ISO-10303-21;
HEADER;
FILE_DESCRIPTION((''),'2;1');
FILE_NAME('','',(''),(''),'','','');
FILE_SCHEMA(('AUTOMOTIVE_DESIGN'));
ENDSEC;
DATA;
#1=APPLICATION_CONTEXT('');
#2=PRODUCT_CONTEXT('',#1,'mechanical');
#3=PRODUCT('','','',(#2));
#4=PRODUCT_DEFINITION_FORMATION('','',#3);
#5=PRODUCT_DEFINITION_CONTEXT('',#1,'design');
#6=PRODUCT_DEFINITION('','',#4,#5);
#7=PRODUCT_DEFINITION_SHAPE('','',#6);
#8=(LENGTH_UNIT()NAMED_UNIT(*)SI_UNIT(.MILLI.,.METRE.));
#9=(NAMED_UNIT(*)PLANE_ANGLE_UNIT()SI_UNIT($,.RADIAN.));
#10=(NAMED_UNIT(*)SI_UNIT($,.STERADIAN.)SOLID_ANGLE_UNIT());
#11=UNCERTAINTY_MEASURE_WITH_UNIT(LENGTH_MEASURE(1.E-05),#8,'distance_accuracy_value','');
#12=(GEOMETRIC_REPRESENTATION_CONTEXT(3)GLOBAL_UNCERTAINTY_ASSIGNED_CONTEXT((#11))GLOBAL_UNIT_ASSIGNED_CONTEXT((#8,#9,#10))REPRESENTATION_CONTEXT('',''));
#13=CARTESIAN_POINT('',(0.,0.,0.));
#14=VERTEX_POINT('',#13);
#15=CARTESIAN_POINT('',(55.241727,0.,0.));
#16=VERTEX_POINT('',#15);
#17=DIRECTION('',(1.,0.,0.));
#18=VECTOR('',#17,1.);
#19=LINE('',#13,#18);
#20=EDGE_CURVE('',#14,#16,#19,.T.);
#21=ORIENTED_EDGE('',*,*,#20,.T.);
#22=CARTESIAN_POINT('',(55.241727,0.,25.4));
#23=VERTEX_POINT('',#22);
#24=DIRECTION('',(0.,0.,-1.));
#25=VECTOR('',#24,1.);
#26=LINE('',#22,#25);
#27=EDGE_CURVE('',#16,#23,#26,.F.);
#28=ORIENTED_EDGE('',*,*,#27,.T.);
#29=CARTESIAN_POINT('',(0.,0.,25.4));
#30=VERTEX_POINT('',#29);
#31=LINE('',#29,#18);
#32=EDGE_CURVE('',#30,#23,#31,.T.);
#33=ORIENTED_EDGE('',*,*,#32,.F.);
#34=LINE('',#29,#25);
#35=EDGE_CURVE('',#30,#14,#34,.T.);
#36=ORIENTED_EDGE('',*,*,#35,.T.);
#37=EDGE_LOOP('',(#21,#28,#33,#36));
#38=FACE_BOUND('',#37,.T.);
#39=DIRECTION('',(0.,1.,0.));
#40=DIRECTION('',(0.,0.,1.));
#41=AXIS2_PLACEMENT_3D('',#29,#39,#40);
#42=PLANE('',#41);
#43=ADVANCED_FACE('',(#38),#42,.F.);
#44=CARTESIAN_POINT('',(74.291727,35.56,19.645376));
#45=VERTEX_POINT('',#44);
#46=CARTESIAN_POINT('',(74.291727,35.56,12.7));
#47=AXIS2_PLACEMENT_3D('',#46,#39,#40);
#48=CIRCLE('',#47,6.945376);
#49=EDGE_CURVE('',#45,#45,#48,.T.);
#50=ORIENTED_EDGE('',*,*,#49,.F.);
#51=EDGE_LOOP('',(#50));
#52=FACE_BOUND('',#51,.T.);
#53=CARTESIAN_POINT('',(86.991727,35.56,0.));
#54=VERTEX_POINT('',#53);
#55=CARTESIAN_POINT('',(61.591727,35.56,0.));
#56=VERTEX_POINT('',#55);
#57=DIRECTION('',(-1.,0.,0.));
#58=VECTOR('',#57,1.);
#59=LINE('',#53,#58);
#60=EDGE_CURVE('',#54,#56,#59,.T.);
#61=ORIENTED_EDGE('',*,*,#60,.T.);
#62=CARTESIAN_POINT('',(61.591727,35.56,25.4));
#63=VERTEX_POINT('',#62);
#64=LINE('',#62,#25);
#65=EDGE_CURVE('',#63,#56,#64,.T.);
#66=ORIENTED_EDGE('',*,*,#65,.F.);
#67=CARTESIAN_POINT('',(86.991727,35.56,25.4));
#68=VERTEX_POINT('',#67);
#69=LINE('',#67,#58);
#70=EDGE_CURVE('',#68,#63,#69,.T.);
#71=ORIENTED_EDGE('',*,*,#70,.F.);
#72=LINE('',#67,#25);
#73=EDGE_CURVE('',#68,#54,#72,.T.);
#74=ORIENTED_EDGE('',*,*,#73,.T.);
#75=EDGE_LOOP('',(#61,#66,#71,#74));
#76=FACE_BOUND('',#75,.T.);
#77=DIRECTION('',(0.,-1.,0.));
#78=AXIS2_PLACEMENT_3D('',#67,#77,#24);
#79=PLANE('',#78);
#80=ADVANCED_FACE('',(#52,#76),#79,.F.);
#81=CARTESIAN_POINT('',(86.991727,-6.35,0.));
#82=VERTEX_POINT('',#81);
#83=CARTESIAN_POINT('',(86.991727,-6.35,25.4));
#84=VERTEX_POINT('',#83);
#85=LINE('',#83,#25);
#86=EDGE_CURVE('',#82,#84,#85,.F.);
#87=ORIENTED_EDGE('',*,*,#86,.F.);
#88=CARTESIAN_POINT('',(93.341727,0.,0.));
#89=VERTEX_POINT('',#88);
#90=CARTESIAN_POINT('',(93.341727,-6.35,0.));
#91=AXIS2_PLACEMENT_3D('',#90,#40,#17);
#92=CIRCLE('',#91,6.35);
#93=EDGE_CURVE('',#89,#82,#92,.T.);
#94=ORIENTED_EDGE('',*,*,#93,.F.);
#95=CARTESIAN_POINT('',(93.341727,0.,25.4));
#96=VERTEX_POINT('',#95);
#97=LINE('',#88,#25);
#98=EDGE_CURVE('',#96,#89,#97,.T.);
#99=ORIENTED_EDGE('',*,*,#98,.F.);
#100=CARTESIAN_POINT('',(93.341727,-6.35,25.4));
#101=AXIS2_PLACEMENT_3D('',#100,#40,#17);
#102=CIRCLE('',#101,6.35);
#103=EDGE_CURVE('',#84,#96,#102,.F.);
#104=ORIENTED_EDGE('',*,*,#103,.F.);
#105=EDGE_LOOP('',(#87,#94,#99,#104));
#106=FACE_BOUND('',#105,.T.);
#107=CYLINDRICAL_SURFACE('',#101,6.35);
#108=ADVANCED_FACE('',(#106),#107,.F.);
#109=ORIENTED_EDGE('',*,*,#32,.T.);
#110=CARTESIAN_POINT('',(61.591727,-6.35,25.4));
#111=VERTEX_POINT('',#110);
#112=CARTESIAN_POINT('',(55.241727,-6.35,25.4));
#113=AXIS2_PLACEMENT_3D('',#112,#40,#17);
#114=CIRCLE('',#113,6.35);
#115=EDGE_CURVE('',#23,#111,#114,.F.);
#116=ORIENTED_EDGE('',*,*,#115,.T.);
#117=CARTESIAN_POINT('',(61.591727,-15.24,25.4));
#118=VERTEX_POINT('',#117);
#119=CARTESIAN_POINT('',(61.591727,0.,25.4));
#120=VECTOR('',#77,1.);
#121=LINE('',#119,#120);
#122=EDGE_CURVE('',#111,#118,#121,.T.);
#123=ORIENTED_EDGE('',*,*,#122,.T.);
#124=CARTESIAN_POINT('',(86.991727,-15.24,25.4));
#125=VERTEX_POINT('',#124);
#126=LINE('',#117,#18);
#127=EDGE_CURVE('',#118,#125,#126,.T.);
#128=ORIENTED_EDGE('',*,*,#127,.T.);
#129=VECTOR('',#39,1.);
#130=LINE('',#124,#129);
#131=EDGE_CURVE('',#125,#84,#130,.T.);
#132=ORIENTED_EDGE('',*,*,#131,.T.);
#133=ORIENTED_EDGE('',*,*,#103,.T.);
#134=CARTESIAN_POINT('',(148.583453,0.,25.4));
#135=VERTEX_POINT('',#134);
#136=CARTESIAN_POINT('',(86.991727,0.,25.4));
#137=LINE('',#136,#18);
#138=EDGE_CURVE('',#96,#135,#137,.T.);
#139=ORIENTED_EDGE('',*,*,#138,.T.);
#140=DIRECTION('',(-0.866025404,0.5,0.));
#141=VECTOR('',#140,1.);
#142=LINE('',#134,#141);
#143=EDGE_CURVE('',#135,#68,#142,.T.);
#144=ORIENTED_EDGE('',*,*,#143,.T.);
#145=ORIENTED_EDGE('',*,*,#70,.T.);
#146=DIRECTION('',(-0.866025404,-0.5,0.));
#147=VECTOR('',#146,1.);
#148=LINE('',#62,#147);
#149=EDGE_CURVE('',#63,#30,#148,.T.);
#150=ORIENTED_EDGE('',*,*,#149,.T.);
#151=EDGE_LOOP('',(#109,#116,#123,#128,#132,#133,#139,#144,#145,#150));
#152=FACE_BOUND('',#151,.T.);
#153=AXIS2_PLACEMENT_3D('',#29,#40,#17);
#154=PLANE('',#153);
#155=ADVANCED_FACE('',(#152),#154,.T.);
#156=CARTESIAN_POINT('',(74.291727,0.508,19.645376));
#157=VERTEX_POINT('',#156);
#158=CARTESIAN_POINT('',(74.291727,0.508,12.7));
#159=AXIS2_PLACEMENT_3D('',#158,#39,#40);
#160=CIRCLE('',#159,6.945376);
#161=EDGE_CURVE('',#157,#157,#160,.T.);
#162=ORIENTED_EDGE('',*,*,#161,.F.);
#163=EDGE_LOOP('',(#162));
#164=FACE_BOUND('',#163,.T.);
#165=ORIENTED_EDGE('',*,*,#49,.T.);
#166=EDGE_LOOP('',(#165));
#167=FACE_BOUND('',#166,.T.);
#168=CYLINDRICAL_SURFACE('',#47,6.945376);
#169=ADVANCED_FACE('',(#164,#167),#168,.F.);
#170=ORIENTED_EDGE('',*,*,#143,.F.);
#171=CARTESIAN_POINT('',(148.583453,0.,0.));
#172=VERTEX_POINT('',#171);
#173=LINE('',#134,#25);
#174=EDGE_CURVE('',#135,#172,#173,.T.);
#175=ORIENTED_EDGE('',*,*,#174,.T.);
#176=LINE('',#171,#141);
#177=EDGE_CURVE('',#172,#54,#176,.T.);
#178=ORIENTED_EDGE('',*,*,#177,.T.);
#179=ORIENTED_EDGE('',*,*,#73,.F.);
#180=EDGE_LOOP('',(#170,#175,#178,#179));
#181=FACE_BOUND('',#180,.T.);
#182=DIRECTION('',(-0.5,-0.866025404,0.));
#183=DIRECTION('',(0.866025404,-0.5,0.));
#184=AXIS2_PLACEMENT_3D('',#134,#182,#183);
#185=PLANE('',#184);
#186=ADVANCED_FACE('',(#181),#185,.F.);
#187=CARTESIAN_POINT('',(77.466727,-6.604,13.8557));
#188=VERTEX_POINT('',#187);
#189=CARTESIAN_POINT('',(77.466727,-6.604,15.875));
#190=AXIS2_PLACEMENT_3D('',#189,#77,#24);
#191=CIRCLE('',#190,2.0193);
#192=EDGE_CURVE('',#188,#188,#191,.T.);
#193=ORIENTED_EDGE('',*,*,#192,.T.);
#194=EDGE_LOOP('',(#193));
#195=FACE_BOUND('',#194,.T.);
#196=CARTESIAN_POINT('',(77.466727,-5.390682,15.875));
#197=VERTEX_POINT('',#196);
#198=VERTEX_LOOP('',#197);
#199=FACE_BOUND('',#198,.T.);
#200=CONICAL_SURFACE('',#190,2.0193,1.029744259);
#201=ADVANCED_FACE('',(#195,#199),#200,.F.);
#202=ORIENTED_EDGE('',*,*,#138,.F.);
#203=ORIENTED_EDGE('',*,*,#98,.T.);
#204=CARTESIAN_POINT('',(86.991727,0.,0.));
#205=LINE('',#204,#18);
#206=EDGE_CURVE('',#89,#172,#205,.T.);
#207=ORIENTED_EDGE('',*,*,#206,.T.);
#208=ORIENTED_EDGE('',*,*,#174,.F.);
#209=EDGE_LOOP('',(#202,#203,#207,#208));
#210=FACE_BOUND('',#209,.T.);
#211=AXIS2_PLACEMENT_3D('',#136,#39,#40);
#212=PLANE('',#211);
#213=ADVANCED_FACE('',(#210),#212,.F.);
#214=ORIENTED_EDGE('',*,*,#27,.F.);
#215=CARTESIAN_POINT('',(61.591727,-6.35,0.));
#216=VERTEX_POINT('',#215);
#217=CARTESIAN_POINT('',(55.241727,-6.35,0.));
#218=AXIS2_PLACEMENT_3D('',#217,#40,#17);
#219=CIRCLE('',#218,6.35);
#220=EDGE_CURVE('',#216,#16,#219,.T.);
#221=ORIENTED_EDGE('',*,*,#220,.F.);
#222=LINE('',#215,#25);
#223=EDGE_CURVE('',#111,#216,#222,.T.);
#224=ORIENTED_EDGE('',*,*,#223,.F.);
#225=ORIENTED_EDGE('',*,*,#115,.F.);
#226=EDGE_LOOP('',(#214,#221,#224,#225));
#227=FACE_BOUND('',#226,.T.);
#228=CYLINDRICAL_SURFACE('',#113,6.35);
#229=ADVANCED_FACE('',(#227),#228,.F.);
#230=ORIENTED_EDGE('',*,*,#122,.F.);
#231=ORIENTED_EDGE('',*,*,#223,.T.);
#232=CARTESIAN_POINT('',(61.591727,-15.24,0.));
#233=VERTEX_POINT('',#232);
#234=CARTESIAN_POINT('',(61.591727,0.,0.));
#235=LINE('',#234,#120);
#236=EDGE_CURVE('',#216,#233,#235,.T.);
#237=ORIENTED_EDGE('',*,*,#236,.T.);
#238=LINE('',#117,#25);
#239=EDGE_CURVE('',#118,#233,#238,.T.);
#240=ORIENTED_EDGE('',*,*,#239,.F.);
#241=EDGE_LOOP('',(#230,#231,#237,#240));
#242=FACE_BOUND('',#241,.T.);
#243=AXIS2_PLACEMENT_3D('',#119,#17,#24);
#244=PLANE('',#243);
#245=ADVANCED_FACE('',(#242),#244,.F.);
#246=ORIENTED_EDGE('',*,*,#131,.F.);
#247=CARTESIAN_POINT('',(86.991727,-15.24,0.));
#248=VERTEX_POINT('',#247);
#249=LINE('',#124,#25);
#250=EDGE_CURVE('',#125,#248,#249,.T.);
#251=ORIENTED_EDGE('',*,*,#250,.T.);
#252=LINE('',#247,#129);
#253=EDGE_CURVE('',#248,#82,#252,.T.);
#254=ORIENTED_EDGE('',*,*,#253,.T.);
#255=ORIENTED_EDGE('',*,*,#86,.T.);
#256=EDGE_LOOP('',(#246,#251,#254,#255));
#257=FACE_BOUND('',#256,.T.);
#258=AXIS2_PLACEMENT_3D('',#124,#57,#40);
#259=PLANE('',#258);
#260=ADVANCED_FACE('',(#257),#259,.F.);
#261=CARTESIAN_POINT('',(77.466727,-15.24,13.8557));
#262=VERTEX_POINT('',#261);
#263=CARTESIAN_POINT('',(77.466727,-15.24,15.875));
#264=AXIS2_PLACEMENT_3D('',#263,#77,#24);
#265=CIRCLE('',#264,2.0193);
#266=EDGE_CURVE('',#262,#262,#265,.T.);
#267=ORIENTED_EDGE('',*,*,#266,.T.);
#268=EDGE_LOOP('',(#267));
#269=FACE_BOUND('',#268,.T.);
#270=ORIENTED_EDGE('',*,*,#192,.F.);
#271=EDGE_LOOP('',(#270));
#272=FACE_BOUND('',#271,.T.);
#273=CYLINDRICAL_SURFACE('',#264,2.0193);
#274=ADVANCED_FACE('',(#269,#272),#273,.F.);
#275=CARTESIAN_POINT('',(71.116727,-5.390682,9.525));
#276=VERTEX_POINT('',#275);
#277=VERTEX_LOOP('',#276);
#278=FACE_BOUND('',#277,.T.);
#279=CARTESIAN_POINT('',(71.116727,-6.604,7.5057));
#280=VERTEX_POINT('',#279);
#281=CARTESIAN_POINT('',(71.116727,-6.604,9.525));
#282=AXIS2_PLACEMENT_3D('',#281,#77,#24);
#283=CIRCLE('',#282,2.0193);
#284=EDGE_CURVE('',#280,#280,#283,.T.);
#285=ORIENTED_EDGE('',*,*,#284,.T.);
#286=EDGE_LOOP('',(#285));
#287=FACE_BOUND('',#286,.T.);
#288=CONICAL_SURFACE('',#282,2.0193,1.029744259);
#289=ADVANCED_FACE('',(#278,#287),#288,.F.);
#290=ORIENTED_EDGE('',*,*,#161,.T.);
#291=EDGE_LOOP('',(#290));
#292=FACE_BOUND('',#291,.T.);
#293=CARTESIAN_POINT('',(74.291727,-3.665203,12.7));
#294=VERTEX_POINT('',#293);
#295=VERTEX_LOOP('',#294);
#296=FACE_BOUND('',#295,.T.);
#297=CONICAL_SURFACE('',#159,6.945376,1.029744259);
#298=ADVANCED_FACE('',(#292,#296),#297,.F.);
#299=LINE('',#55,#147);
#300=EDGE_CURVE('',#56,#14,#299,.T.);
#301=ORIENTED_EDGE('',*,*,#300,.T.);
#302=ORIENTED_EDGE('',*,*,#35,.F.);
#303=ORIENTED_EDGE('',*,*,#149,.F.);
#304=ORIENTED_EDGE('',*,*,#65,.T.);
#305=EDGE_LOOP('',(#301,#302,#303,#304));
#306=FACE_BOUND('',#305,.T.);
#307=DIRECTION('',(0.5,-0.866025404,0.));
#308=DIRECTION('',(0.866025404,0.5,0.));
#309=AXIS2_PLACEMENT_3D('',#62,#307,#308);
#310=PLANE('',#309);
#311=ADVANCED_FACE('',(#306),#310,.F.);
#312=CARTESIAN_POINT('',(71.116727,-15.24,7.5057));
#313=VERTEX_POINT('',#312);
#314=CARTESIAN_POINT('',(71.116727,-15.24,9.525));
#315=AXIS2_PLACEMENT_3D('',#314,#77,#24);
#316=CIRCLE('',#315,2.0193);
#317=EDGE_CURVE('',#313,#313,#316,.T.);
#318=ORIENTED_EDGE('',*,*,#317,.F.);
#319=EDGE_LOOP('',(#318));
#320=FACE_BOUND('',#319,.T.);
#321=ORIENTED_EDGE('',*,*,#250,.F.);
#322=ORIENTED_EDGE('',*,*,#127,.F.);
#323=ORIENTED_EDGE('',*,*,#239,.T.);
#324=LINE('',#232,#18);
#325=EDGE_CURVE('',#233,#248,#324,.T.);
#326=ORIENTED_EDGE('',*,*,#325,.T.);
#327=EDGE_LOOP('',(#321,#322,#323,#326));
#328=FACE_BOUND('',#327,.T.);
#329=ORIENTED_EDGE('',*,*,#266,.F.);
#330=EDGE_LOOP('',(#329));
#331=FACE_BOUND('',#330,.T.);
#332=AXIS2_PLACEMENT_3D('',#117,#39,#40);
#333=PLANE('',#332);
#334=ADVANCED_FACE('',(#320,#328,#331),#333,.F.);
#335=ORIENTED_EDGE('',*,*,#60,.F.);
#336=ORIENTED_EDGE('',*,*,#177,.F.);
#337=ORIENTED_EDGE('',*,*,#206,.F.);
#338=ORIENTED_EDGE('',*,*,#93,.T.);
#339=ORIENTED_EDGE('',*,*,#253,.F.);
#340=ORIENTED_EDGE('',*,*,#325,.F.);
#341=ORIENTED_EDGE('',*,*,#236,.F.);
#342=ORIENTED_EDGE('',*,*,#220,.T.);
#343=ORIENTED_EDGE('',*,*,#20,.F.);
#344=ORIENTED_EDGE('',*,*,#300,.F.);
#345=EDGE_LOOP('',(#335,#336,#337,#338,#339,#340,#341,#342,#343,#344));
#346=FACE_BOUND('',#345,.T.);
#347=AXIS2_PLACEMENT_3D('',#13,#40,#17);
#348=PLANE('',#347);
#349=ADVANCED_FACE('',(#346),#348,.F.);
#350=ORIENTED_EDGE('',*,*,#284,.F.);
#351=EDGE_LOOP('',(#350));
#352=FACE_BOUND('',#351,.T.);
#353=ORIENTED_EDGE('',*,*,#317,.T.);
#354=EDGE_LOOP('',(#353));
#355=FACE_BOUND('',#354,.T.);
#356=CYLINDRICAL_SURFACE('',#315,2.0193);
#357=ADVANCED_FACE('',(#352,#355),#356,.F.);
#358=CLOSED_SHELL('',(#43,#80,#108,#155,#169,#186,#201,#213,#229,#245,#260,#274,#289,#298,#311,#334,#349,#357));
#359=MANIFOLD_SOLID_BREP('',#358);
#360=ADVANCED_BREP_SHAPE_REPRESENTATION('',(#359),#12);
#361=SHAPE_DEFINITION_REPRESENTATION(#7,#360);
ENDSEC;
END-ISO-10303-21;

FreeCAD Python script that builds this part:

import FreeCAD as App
import Part
import Sketcher
Q = App.Units.Quantity


def edges_at(feature, points):
    """Names of the edges that pass closest to the given points."""
    edges = feature.Shape.Edges
    near = lambda p: min(range(len(edges)), key=lambda i: edges[i].distToShape(Part.Vertex(*p))[0])
    return sorted({f"Edge{near(p) + 1}" for p in points})

doc = App.newDocument("Part")
body = doc.addObject("PartDesign::Body", "Body")

# Sketch on XY plane
sketch1 = body.newObject("Sketcher::SketchObject", "Sketch")
sketch1.AttachmentSupport = (doc.getObject("XY_Plane"), [""])
sketch1.MapMode = "FlatFace"
sketch1.addGeometry([
    Part.LineSegment(App.Vector(0, 0, 0), App.Vector(62, 0, 0)),  # 0
    Part.LineSegment(App.Vector(62, 0, 0), App.Vector(62, -15, 0)),  # 1
    Part.LineSegment(App.Vector(62, -15, 0), App.Vector(87, -15, 0)),  # 2
    Part.LineSegment(App.Vector(87, -15, 0), App.Vector(87, 0, 0)),  # 3
    Part.LineSegment(App.Vector(87, 0, 0), App.Vector(149, 0, 0)),  # 4
    Part.LineSegment(App.Vector(149, 0, 0), App.Vector(87, 36, 0)),  # 5
    Part.LineSegment(App.Vector(87, 36, 0), App.Vector(62, 36, 0)),  # 6
    Part.LineSegment(App.Vector(62, 36, 0), App.Vector(0, 0, 0)),  # 7
], False)
sketch1.addConstraint([
    Sketcher.Constraint("Coincident", 0, 2, 1, 1),
    Sketcher.Constraint("Coincident", 1, 2, 2, 1),
    Sketcher.Constraint("Coincident", 2, 2, 3, 1),
    Sketcher.Constraint("Coincident", 3, 2, 4, 1),
    Sketcher.Constraint("Coincident", 4, 2, 5, 1),
    Sketcher.Constraint("Coincident", 5, 2, 6, 1),
    Sketcher.Constraint("Coincident", 6, 2, 7, 1),
    Sketcher.Constraint("Coincident", 7, 2, 0, 1),
    Sketcher.Constraint("Horizontal", 0),
    Sketcher.Constraint("Vertical", 1),
    Sketcher.Constraint("Horizontal", 2),
    Sketcher.Constraint("Vertical", 3),
    Sketcher.Constraint("Horizontal", 4),
    Sketcher.Constraint("Horizontal", 6),
    Sketcher.Constraint("Coincident", 7, 2, -1, 1),
    Sketcher.Constraint("PointOnObject", 3, 2, -1),
    Sketcher.Constraint("Vertical", 3, 2, 5, 2),
    Sketcher.Constraint("Vertical", 1, 2, 6, 2),
    Sketcher.Constraint("Equal", 0, 4),
    Sketcher.Constraint("DistanceX", 2, 1, 2, 2, Q("1 in")),
    Sketcher.Constraint("DistanceY", 1, 2, 1, 1, Q("0.6 in")),
    Sketcher.Constraint("Angle", 5, Q("150 deg")),
    Sketcher.Constraint("DistanceY", 2, 2, 5, 2, Q("2 in")),
])
pad1 = body.newObject("PartDesign::Pad", "Pad")
pad1.Profile = sketch1
pad1.Length = Q("1 in")

# Sketch on XZ plane
sketch2 = body.newObject("Sketcher::SketchObject", "Sketch001")
sketch2.AttachmentSupport = (doc.getObject("XZ_Plane"), [""])
sketch2.MapMode = "FlatFace"
sketch2.AttachmentOffset = App.Placement(App.Vector(0, 0, -1.4 * 25.4), App.Rotation())
sketch2.addGeometry(Part.Circle(App.Vector(74, 13, 0), App.Vector(0, 0, 1), 7), False)
sketch2.addConstraint([
    Sketcher.Constraint("DistanceY", -1, 1, 0, 3, Q("0.5 in")),
    Sketcher.Constraint("Diameter", 0, 13.890752),
    Sketcher.Constraint("DistanceX", -1, 1, 0, 3, 74.291727),
])
doc.recompute()
hole = body.newObject("PartDesign::Hole", "Hole")
hole.Profile = sketch2
hole.ThreadType = "None"
hole.Diameter = 13.890752
hole.DepthType = "Dimension"
hole.Depth = Q("1.38 in")
hole.DrillPoint = "Angled"
hole.DrillPointAngle = 118
hole.Reversed = True

# Sketch on XZ plane
sketch3 = body.newObject("Sketcher::SketchObject", "Sketch002")
sketch3.AttachmentSupport = (doc.getObject("XZ_Plane"), [""])
sketch3.MapMode = "FlatFace"
sketch3.AttachmentOffset = App.Placement(App.Vector(0, 0, 0.6 * 25.4), App.Rotation())
sketch3.addGeometry([
    Part.Circle(App.Vector(77.5, 15.9, 0), App.Vector(0, 0, 1), 2),
    Part.Circle(App.Vector(71.1, 9.5, 0), App.Vector(0, 0, 1), 2),
], False)
sketch3.addConstraint([
    Sketcher.Constraint("Equal", 0, 1),
    Sketcher.Constraint("Diameter", 0, Q("0.159 in")),
    Sketcher.Constraint("DistanceX", 1, 3, 0, 3, Q("0.25 in")),
    Sketcher.Constraint("DistanceY", 1, 3, 0, 3, Q("0.25 in")),
    Sketcher.Constraint("DistanceY", -1, 1, 0, 3, Q("0.625 in")),
    Sketcher.Constraint("DistanceX", -1, 1, 0, 3, 77.466727),
])
doc.recompute()
hole2 = body.newObject("PartDesign::Hole", "Hole001")
hole2.Profile = sketch3
hole2.ThreadType = "None"
hole2.Diameter = Q("0.159 in")
hole2.DepthType = "Dimension"
hole2.Depth = Q("0.34 in")
hole2.DrillPoint = "Angled"
hole2.DrillPointAngle = 118
doc.recompute()

fillet = body.newObject("PartDesign::Fillet", "Fillet")
fillet.Base = (hole2, edges_at(hole2, [(86.992, 0, 12.7), (61.592, 0, 12.7)]))
fillet.Radius = Q("0.25 in")

doc.recompute()
